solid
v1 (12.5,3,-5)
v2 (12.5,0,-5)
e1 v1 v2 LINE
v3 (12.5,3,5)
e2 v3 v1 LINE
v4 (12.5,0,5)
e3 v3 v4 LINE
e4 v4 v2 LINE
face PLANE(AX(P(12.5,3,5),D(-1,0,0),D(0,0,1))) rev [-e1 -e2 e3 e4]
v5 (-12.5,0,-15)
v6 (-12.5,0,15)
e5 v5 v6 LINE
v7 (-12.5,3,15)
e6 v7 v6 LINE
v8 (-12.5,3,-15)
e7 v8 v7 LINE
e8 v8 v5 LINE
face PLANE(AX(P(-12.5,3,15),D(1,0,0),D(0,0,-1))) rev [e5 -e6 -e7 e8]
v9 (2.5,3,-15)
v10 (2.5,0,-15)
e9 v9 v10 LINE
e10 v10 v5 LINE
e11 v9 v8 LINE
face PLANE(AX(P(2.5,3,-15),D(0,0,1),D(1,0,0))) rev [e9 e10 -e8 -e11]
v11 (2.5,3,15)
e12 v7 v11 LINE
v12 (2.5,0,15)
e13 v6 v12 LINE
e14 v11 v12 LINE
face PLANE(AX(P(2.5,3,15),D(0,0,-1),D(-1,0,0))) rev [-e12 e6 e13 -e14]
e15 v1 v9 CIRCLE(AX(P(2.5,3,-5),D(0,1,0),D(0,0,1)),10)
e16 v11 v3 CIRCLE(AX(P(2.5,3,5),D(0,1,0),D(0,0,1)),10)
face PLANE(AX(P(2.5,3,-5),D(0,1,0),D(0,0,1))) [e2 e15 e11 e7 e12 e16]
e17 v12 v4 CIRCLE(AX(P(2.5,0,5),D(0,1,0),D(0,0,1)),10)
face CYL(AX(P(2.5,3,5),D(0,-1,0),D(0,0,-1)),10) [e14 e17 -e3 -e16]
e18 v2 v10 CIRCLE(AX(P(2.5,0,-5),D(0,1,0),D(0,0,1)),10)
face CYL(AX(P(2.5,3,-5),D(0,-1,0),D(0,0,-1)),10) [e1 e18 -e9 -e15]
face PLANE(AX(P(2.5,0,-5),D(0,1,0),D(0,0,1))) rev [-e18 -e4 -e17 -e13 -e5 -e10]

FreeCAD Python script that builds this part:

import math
import FreeCAD as App
import Part
import Sketcher

V = App.Vector

doc = App.newDocument("Part")
params = doc.addObject("Spreadsheet::Sheet", "Params")
for row, (alias, value) in enumerate([
    ("sketch1_radius", "10 mm"),
    ("sketch1_width", "15 mm"),
    ("sketch1_height", "10 mm"),
    ("pad1_length", "3 mm"),
], start=1):
    params.set(f"A{row}", alias)
    params.set(f"B{row}", "=" + value)
    params.setAlias(f"B{row}", alias)

body = doc.addObject("PartDesign::Body", "Body")

# Sketch on XZ plane
sketch1 = body.newObject("Sketcher::SketchObject", "Sketch")
sketch1.AttachmentSupport = (doc.getObject("XZ_Plane"), [""])
sketch1.MapMode = "FlatFace"
sketch1.addGeometry([
    Part.LineSegment(V(-12, 15, 0), V(2, 15, 0)),  # 0
    Part.ArcOfCircle(Part.Circle(V(2, 5, 0), V(0, 0, 1), 10), math.radians(0), math.radians(90)),  # 1
    Part.LineSegment(V(12, 5, 0), V(12, -5, 0)),  # 2
    Part.ArcOfCircle(Part.Circle(V(2, -5, 0), V(0, 0, 1), 10), math.radians(-90), math.radians(0)),  # 3
    Part.LineSegment(V(2, -15, 0), V(-12, -15, 0)),  # 4
    Part.LineSegment(V(-12, -15, 0), V(-12, 15, 0)),  # 5
], False)
sketch1.addConstraint([
    Sketcher.Constraint("Tangent", 0, 2, 1, 2),
    Sketcher.Constraint("Tangent", 1, 1, 2, 1),
    Sketcher.Constraint("Tangent", 2, 2, 3, 2),
    Sketcher.Constraint("Tangent", 3, 1, 4, 1),
    Sketcher.Constraint("Coincident", 4, 2, 5, 1),
    Sketcher.Constraint("Coincident", 5, 2, 0, 1),
    Sketcher.Constraint("Horizontal", 0),
    Sketcher.Constraint("Vertical", 2),
    Sketcher.Constraint("Horizontal", 4),
    Sketcher.Constraint("Vertical", 5),
    Sketcher.Constraint("Equal", 1, 3),
    Sketcher.Constraint("Radius", 1, 10.0),
    Sketcher.Constraint("DistanceX", 0, 1, 0, 2, 15.0),
    Sketcher.Constraint("DistanceY", 2, 2, 2, 1, 10.0),
    Sketcher.Constraint("DistanceY", -1, 1, 1, 3, 5.0),
    Sketcher.Constraint("DistanceX", -1, 1, 1, 3, 2.5),
])
sketch1.setExpression("Constraints[11]", "Params.sketch1_radius")
sketch1.setExpression("Constraints[12]", "Params.sketch1_width")
sketch1.setExpression("Constraints[13]", "Params.sketch1_height")
pad1 = body.newObject("PartDesign::Pad", "Pad")
pad1.Profile = sketch1
pad1.setExpression("Length", "Params.pad1_length")
pad1.Reversed = True

doc.recompute()
